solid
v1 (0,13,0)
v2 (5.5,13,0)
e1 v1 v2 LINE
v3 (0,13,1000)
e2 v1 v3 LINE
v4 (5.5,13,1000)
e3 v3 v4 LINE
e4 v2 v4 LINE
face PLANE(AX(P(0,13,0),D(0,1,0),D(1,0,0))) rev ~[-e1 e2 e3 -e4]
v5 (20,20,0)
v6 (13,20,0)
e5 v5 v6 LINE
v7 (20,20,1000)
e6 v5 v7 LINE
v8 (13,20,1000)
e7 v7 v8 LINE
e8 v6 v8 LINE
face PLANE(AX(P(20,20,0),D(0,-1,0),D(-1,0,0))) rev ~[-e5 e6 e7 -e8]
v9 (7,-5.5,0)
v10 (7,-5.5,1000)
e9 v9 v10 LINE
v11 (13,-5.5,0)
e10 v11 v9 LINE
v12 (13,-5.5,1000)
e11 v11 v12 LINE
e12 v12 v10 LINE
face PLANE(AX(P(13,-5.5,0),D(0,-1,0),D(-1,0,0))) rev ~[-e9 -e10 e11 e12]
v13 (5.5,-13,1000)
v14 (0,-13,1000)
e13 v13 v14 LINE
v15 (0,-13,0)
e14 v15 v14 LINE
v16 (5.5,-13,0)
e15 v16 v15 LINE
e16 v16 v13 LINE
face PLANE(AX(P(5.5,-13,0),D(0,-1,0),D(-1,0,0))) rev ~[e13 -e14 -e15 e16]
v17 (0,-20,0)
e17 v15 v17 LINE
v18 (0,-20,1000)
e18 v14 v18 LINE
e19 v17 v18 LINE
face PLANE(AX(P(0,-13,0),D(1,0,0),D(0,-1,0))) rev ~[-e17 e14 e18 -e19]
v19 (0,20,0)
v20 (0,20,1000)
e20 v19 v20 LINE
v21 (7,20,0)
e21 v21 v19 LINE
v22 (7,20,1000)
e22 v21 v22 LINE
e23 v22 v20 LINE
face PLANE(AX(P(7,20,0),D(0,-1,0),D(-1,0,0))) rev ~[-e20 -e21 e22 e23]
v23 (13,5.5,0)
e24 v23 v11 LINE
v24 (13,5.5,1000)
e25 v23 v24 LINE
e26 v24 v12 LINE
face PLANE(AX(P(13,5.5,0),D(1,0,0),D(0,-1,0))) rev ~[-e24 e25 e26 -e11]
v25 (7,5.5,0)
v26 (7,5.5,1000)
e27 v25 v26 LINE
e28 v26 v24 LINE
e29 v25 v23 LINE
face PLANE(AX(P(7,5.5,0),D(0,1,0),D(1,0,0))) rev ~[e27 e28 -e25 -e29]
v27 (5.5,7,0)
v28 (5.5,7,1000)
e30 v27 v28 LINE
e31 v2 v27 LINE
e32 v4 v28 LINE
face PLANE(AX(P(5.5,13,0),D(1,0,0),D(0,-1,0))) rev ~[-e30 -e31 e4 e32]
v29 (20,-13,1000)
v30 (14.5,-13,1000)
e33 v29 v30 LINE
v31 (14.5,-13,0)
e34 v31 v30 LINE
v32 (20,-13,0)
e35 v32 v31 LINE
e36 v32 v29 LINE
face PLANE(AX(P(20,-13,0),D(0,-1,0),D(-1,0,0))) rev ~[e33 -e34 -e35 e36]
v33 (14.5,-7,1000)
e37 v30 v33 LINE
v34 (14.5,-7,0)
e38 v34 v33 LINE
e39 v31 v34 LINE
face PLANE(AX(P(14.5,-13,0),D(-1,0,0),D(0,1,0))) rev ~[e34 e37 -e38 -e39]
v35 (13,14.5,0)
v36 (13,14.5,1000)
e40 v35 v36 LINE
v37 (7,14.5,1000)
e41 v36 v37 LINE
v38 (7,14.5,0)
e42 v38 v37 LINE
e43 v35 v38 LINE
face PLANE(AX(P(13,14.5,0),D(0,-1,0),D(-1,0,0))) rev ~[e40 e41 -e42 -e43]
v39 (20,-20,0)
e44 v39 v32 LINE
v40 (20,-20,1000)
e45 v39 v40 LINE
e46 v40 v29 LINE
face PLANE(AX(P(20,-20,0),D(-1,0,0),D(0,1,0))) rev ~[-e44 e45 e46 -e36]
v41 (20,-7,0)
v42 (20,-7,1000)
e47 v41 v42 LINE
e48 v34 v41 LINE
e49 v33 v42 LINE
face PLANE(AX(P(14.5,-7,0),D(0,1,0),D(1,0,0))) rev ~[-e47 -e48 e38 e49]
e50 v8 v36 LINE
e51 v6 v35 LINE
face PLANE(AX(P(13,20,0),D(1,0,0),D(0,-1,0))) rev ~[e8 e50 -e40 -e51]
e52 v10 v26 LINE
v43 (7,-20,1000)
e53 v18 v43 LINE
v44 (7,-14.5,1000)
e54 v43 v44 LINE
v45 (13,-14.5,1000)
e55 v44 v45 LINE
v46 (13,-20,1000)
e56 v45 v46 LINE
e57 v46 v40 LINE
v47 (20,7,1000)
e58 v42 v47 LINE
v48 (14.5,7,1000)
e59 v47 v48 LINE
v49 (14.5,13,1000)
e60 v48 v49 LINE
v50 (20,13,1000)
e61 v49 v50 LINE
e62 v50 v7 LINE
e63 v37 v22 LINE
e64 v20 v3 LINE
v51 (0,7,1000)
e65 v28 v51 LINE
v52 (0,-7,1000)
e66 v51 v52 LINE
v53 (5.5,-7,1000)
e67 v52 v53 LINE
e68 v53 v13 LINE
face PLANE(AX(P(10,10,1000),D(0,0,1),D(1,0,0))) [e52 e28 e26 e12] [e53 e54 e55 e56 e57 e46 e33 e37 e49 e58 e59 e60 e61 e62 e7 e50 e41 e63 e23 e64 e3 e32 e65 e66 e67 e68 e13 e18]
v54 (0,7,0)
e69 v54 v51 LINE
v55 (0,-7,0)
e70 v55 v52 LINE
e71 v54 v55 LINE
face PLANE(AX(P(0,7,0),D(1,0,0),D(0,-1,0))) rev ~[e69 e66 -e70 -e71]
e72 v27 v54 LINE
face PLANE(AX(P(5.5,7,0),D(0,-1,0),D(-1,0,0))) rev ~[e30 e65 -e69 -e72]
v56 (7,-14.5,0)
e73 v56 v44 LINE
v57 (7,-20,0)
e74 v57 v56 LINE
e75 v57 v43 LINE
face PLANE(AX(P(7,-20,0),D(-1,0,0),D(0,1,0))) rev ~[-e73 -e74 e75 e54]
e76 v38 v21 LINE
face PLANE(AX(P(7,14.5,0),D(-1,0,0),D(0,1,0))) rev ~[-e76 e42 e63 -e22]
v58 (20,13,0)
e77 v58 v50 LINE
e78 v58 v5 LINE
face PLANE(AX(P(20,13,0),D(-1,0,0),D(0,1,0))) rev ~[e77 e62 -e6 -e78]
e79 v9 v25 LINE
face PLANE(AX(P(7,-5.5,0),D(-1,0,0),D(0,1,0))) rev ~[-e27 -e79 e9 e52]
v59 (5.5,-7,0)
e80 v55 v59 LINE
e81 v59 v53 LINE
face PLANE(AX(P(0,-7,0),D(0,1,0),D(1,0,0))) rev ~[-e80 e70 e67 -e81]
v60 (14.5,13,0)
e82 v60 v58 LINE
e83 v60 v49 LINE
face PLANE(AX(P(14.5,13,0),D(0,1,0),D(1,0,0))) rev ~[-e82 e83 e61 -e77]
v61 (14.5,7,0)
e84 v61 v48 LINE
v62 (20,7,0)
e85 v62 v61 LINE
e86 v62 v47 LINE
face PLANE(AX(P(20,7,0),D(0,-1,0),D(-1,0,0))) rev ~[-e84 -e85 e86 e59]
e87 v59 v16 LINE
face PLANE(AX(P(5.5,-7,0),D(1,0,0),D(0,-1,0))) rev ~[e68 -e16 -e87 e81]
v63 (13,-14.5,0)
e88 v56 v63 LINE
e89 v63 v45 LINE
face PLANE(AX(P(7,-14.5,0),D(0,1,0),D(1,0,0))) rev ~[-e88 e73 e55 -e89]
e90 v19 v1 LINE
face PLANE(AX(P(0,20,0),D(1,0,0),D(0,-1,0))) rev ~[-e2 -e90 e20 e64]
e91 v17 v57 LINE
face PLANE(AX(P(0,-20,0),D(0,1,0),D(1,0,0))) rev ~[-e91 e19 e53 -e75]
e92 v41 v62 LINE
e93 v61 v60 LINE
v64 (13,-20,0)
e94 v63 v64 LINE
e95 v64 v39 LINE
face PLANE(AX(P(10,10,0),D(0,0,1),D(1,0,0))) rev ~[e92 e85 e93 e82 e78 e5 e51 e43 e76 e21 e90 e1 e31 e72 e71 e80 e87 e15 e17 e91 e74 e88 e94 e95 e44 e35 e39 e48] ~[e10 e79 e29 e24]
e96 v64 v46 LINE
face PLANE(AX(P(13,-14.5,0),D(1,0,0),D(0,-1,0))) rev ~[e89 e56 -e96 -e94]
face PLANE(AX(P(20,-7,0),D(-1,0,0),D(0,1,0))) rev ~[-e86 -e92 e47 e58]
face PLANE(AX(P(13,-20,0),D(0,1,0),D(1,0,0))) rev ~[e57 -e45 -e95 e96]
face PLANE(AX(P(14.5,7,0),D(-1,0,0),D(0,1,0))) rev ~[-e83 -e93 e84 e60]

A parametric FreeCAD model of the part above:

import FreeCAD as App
import Part
import Sketcher

doc = App.newDocument("Part")
body = doc.addObject("PartDesign::Body", "Body")

sketch1 = doc.addObject("Sketcher::SketchObject", "Sketch")
body.addObject(sketch1)
sketch1.AttachmentSupport = (doc.XY_Plane, [""])
sketch1.MapMode = "FlatFace"
sketch1.addGeometry([
    Part.LineSegment(App.Vector(0, 7, 0), App.Vector(0, -7, 0)),
    Part.LineSegment(App.Vector(0, -7, 0), App.Vector(6, -7, 0)),
    Part.LineSegment(App.Vector(6, -7, 0), App.Vector(6, -13, 0)),
    Part.LineSegment(App.Vector(6, -13, 0), App.Vector(0, -13, 0)),
    Part.LineSegment(App.Vector(0, -13, 0), App.Vector(0, -20, 0)),
    Part.LineSegment(App.Vector(0, -20, 0), App.Vector(7, -20, 0)),
    Part.LineSegment(App.Vector(7, -20, 0), App.Vector(7, -14, 0)),
    Part.LineSegment(App.Vector(7, -14, 0), App.Vector(13, -14, 0)),
    Part.LineSegment(App.Vector(13, -14, 0), App.Vector(13, -20, 0)),
    Part.LineSegment(App.Vector(13, -20, 0), App.Vector(20, -20, 0)),
    Part.LineSegment(App.Vector(20, -20, 0), App.Vector(20, -13, 0)),
    Part.LineSegment(App.Vector(20, -13, 0), App.Vector(14, -13, 0)),
    Part.LineSegment(App.Vector(14, -13, 0), App.Vector(14, -7, 0)),
    Part.LineSegment(App.Vector(14, -7, 0), App.Vector(20, -7, 0)),
    Part.LineSegment(App.Vector(20, -7, 0), App.Vector(20, 7, 0)),
    Part.LineSegment(App.Vector(20, 7, 0), App.Vector(14, 7, 0)),
    Part.LineSegment(App.Vector(14, 7, 0), App.Vector(14, 13, 0)),
    Part.LineSegment(App.Vector(14, 13, 0), App.Vector(20, 13, 0)),
    Part.LineSegment(App.Vector(20, 13, 0), App.Vector(20, 20, 0)),
    Part.LineSegment(App.Vector(20, 20, 0), App.Vector(13, 20, 0)),
    Part.LineSegment(App.Vector(13, 20, 0), App.Vector(13, 14, 0)),
    Part.LineSegment(App.Vector(13, 14, 0), App.Vector(7, 14, 0)),
    Part.LineSegment(App.Vector(7, 14, 0), App.Vector(7, 20, 0)),
    Part.LineSegment(App.Vector(7, 20, 0), App.Vector(0, 20, 0)),
    Part.LineSegment(App.Vector(0, 20, 0), App.Vector(0, 13, 0)),
    Part.LineSegment(App.Vector(0, 13, 0), App.Vector(6, 13, 0)),
    Part.LineSegment(App.Vector(6, 13, 0), App.Vector(6, 7, 0)),
    Part.LineSegment(App.Vector(6, 7, 0), App.Vector(0, 7, 0)),
    Part.LineSegment(App.Vector(7, 6, 0), App.Vector(13, 6, 0)),
    Part.LineSegment(App.Vector(13, 6, 0), App.Vector(13, -6, 0)),
    Part.LineSegment(App.Vector(13, -6, 0), App.Vector(7, -6, 0)),
    Part.LineSegment(App.Vector(7, -6, 0), App.Vector(7, 6, 0)),
], False)
sketch1.addConstraint([
    Sketcher.Constraint("Coincident", 0, 2, 1, 1),
    Sketcher.Constraint("Coincident", 1, 2, 2, 1),
    Sketcher.Constraint("Coincident", 2, 2, 3, 1),
    Sketcher.Constraint("Coincident", 3, 2, 4, 1),
    Sketcher.Constraint("Coincident", 4, 2, 5, 1),
    Sketcher.Constraint("Coincident", 5, 2, 6, 1),
    Sketcher.Constraint("Coincident", 6, 2, 7, 1),
    Sketcher.Constraint("Coincident", 7, 2, 8, 1),
    Sketcher.Constraint("Coincident", 8, 2, 9, 1),
    Sketcher.Constraint("Coincident", 9, 2, 10, 1),
    Sketcher.Constraint("Coincident", 10, 2, 11, 1),
    Sketcher.Constraint("Coincident", 11, 2, 12, 1),
    Sketcher.Constraint("Coincident", 12, 2, 13, 1),
    Sketcher.Constraint("Coincident", 13, 2, 14, 1),
    Sketcher.Constraint("Coincident", 14, 2, 15, 1),
    Sketcher.Constraint("Coincident", 15, 2, 16, 1),
    Sketcher.Constraint("Coincident", 16, 2, 17, 1),
    Sketcher.Constraint("Coincident", 17, 2, 18, 1),
    Sketcher.Constraint("Coincident", 18, 2, 19, 1),
    Sketcher.Constraint("Coincident", 19, 2, 20, 1),
    Sketcher.Constraint("Coincident", 20, 2, 21, 1),
    Sketcher.Constraint("Coincident", 21, 2, 22, 1),
    Sketcher.Constraint("Coincident", 22, 2, 23, 1),
    Sketcher.Constraint("Coincident", 23, 2, 24, 1),
    Sketcher.Constraint("Coincident", 24, 2, 25, 1),
    Sketcher.Constraint("Coincident", 25, 2, 26, 1),
    Sketcher.Constraint("Coincident", 26, 2, 27, 1),
    Sketcher.Constraint("Coincident", 27, 2, 0, 1),
    Sketcher.Constraint("Coincident", 28, 2, 29, 1),
    Sketcher.Constraint("Coincident", 29, 2, 30, 1),
    Sketcher.Constraint("Coincident", 30, 2, 31, 1),
    Sketcher.Constraint("Coincident", 31, 2, 28, 1),
    Sketcher.Constraint("Vertical", 0),
    Sketcher.Constraint("Horizontal", 1),
    Sketcher.Constraint("Vertical", 2),
    Sketcher.Constraint("Horizontal", 3),
    Sketcher.Constraint("Vertical", 4),
    Sketcher.Constraint("Horizontal", 5),
    Sketcher.Constraint("Vertical", 6),
    Sketcher.Constraint("Horizontal", 7),
    Sketcher.Constraint("Vertical", 8),
    Sketcher.Constraint("Horizontal", 9),
    Sketcher.Constraint("Vertical", 10),
    Sketcher.Constraint("Horizontal", 11),
    Sketcher.Constraint("Vertical", 12),
    Sketcher.Constraint("Horizontal", 13),
    Sketcher.Constraint("Vertical", 14),
    Sketcher.Constraint("Horizontal", 15),
    Sketcher.Constraint("Vertical", 16),
    Sketcher.Constraint("Horizontal", 17),
    Sketcher.Constraint("Vertical", 18),
    Sketcher.Constraint("Horizontal", 19),
    Sketcher.Constraint("Vertical", 20),
    Sketcher.Constraint("Horizontal", 21),
    Sketcher.Constraint("Vertical", 22),
    Sketcher.Constraint("Horizontal", 23),
    Sketcher.Constraint("Vertical", 24),
    Sketcher.Constraint("Horizontal", 25),
    Sketcher.Constraint("Vertical", 26),
    Sketcher.Constraint("Horizontal", 27),
    Sketcher.Constraint("Horizontal", 28),
    Sketcher.Constraint("Vertical", 29),
    Sketcher.Constraint("Horizontal", 30),
    Sketcher.Constraint("Vertical", 31),
    Sketcher.Constraint("Symmetric", 4, 2, 23, 2, -1, 1),
    Sketcher.Constraint("Symmetric", 0, 2, 27, 2, -1, 1),
    Sketcher.Constraint("Symmetric", 12, 2, 15, 2, -1),
    Sketcher.Constraint("Symmetric", 10, 2, 17, 2, -1),
    Sketcher.Constraint("Symmetric", 8, 2, 19, 2, -1),
    Sketcher.Constraint("Symmetric", 6, 2, 21, 2, -1),
    Sketcher.Constraint("Symmetric", 3, 2, 24, 2, -1),
    Sketcher.Constraint("Horizontal", 5, 2, 8, 2),
    Sketcher.Constraint("Horizontal", 3, 2, 10, 2),
    Sketcher.Constraint("Horizontal", 1, 2, 12, 2),
    Sketcher.Constraint("Vertical", 10, 2, 13, 2),
    Sketcher.Constraint("Vertical", 2, 2, 25, 2),
    Sketcher.Constraint("Vertical", 20, 2, 28, 2),
    Sketcher.Constraint("Vertical", 22, 2, 30, 2),
    Sketcher.Constraint("Equal", 5, 9),
    Sketcher.Constraint("Equal", 3, 11),
    Sketcher.Constraint("Equal", 30, 2),
    Sketcher.Constraint("Equal", 23, 4),
    Sketcher.Constraint("Equal", 27, 6),
    Sketcher.Constraint("DistanceX", 5, 1, 5, 2, 7.0),
    Sketcher.Constraint("DistanceX", 7, 1, 7, 2, 6.0),
    Sketcher.Constraint("DistanceY", 0, 2, 0, 1, 14.0),
    Sketcher.Constraint("DistanceY", 29, 2, 29, 1, 11.0),
    Sketcher.Constraint("DistanceX", 1, 1, 1, 2, 5.5),
    Sketcher.Constraint("DistanceY", 28, 2, 20, 2, 9.0),
])
pad1 = doc.addObject("PartDesign::Pad", "Pad")
body.addObject(pad1)
pad1.Profile = sketch1
pad1.Length = 1000

doc.recompute()
